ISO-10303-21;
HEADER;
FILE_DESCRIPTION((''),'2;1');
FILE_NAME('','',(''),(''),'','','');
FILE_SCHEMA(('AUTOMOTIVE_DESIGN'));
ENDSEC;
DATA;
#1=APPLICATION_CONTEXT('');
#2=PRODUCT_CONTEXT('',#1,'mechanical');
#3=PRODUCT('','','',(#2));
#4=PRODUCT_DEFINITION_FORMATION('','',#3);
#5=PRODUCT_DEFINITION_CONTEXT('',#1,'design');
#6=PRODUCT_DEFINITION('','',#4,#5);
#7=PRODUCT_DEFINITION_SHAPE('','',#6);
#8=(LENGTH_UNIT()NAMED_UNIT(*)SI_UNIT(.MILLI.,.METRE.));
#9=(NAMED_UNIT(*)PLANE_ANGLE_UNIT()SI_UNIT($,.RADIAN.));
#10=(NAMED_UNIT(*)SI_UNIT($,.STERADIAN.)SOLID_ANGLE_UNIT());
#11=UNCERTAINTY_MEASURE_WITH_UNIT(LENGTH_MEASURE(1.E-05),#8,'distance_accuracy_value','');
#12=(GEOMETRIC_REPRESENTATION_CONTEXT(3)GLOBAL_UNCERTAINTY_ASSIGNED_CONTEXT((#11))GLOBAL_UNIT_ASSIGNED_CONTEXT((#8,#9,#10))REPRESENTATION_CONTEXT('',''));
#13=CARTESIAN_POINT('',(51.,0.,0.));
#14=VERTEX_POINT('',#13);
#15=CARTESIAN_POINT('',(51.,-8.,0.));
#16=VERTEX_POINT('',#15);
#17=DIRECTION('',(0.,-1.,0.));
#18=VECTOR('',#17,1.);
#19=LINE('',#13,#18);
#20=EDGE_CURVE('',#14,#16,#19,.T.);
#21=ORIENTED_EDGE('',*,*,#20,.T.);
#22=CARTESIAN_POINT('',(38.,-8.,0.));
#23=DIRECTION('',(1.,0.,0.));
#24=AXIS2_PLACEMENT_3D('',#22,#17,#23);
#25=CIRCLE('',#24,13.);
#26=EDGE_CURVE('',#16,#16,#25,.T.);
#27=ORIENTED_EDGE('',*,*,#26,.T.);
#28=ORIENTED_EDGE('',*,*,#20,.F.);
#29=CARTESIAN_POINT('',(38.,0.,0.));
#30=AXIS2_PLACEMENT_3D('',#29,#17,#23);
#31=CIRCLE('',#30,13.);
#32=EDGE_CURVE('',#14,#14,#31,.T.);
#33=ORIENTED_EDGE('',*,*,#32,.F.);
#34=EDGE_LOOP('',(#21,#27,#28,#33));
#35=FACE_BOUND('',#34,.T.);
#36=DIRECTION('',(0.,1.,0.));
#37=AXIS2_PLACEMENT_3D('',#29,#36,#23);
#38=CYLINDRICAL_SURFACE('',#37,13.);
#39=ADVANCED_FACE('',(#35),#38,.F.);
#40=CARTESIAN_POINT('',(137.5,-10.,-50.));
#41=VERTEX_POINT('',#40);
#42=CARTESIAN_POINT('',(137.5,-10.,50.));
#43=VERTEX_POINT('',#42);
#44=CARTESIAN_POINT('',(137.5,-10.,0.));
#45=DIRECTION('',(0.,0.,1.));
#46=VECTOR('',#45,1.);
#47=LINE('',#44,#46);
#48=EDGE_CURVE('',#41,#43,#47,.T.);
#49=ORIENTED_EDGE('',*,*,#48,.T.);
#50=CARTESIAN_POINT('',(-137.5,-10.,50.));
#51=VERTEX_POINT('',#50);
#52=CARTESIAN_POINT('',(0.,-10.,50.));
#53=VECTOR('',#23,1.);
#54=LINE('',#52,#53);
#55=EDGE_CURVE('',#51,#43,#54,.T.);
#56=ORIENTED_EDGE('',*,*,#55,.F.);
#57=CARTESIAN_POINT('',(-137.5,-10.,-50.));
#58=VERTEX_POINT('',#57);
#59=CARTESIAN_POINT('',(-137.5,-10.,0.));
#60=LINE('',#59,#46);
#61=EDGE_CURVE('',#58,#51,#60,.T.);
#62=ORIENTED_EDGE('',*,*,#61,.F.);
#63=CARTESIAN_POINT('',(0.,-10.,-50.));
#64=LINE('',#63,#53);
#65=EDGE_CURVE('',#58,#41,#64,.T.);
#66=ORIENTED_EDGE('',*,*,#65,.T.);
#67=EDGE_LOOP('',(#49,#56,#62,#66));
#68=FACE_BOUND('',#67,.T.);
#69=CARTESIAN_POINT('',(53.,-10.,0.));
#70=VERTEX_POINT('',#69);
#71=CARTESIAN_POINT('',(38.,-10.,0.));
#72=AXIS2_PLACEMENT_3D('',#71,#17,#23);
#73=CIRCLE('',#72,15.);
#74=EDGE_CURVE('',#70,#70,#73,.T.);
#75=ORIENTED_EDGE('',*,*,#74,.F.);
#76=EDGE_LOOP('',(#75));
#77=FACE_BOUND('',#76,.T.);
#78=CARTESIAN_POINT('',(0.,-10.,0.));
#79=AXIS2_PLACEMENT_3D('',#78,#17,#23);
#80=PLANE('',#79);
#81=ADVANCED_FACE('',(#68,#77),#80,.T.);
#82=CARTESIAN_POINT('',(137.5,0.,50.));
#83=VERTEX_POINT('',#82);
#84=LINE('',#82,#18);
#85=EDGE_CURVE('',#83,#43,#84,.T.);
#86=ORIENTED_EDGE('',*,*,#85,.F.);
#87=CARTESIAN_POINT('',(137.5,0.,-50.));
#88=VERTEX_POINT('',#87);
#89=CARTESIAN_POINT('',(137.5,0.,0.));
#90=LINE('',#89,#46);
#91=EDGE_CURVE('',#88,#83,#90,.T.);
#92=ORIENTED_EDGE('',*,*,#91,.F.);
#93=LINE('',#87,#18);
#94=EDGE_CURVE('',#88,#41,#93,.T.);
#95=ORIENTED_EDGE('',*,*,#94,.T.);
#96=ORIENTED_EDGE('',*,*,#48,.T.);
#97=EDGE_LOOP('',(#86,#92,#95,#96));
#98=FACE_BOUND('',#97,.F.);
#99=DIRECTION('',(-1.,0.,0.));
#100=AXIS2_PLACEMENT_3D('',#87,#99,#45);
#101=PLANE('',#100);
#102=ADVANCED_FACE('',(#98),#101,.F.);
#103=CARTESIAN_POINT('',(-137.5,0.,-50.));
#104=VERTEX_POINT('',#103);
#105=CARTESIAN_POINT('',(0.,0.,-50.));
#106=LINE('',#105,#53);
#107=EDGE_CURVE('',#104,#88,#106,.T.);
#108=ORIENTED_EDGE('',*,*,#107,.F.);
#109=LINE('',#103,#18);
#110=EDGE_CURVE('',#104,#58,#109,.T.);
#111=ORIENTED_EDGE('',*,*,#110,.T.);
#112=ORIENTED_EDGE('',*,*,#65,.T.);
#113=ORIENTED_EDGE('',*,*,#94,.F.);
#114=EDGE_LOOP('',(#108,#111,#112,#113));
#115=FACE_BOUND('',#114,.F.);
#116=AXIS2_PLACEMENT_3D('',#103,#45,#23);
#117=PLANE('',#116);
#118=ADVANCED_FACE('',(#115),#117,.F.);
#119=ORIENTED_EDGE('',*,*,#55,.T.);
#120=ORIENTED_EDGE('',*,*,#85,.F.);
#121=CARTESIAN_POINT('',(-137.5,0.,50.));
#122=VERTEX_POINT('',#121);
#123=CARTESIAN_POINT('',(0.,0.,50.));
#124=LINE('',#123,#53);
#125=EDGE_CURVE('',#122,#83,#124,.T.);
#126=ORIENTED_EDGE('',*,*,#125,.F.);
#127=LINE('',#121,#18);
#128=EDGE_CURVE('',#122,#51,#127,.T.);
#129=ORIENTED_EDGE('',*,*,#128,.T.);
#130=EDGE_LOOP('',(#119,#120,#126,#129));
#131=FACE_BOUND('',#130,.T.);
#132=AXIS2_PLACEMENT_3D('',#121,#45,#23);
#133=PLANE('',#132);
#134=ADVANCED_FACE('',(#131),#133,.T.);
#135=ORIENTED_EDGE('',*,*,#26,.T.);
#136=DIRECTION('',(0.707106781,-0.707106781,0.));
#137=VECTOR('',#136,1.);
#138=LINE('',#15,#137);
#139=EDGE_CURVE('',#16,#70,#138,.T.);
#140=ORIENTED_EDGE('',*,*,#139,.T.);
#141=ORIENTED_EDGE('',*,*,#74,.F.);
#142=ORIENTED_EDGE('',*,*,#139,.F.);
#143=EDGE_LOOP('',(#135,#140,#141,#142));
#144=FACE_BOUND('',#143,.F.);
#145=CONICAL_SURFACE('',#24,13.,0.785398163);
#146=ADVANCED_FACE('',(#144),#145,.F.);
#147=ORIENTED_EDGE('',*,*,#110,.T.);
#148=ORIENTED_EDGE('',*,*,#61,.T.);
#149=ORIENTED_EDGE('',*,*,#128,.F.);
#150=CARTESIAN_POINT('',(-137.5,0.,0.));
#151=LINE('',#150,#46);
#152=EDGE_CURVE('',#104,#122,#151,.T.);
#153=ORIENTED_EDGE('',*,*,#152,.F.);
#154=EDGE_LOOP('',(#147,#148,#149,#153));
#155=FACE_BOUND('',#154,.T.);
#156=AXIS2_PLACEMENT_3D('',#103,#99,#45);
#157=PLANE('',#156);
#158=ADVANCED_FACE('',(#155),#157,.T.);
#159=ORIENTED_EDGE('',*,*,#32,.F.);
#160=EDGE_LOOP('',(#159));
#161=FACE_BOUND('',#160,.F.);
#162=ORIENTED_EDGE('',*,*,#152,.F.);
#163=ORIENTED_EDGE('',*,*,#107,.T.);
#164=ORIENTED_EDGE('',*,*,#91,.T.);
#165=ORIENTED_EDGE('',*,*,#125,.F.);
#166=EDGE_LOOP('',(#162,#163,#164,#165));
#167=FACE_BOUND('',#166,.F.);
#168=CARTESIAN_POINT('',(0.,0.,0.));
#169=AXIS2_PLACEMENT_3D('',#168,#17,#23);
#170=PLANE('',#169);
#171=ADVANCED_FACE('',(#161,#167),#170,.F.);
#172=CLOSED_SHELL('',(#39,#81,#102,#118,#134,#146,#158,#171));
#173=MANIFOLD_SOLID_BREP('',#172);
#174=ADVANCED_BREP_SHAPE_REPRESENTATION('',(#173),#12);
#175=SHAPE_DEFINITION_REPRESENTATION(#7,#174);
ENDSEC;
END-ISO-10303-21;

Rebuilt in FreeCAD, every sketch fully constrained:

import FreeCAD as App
import Part
import Sketcher

V = App.Vector
Q = App.Units.Quantity


def edges_at(feature, points):
    """Names of the edges that pass closest to the given points."""
    edges = feature.Shape.Edges
    near = lambda p: min(range(len(edges)), key=lambda i: edges[i].distToShape(Part.Vertex(*p))[0])
    return sorted({f"Edge{near(p) + 1}" for p in points})

doc = App.newDocument("Part")
body = doc.addObject("PartDesign::Body", "Body")

# Sketch on XZ plane
sketch1 = body.newObject("Sketcher::SketchObject", "Sketch")
sketch1.AttachmentSupport = (doc.getObject("XZ_Plane"), [""])
sketch1.MapMode = "FlatFace"
sketch1.addGeometry([
    Part.LineSegment(V(-137.5, 50, 0), V(-137.5, -50, 0)),  # 0
    Part.LineSegment(V(-137.5, -50, 0), V(137.5, -50, 0)),  # 1
    Part.LineSegment(V(137.5, -50, 0), V(137.5, 50, 0)),  # 2
    Part.LineSegment(V(137.5, 50, 0), V(-137.5, 50, 0)),  # 3
    Part.Circle(V(38, 0, 0), V(0, 0, 1), 13),  # 4
], False)
sketch1.addConstraint([
    Sketcher.Constraint("Coincident", 0, 2, 1, 1),
    Sketcher.Constraint("Coincident", 1, 2, 2, 1),
    Sketcher.Constraint("Coincident", 2, 2, 3, 1),
    Sketcher.Constraint("Coincident", 3, 2, 0, 1),
    Sketcher.Constraint("Vertical", 0),
    Sketcher.Constraint("Horizontal", 1),
    Sketcher.Constraint("Vertical", 2),
    Sketcher.Constraint("Horizontal", 3),
    Sketcher.Constraint("Symmetric", 0, 2, 2, 2, -1, 1),
    Sketcher.Constraint("PointOnObject", 4, 3, -1),
    Sketcher.Constraint("Diameter", 4, Q("26 mm")),
    Sketcher.Constraint("DistanceX", 1, 1, 1, 2, Q("275 mm")),
    Sketcher.Constraint("DistanceY", 0, 2, 0, 1, Q("100 mm")),
    Sketcher.Constraint("DistanceX", -1, 1, 4, 3, Q("38 mm")),
])
pad1 = body.newObject("PartDesign::Pad", "Pad")
pad1.Profile = sketch1
pad1.Length = 10
doc.recompute()

chamfer = body.newObject("PartDesign::Chamfer", "Chamfer")
chamfer.Base = (pad1, edges_at(pad1, [(25, -10, 0)]))
chamfer.Size = 2

doc.recompute()
